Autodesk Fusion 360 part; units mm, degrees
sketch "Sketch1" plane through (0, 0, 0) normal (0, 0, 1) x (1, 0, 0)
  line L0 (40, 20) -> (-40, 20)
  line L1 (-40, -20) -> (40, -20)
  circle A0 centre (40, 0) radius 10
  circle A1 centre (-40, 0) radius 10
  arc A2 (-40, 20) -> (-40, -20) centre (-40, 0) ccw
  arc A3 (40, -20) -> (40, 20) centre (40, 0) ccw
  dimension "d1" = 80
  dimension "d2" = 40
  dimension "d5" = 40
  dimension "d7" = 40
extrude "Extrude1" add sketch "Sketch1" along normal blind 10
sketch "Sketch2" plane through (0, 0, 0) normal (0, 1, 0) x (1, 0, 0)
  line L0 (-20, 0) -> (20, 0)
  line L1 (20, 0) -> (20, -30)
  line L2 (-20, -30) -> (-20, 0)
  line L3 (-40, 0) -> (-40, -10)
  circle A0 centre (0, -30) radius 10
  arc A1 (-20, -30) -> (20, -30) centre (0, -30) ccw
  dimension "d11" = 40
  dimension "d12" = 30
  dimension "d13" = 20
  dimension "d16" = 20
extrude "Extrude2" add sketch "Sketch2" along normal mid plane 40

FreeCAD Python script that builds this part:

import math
import FreeCAD as App
import Part
import Sketcher
from FreeCAD import Vector
Q = App.Units.Quantity

doc = App.newDocument("Part")
body = doc.addObject("PartDesign::Body", "Body")

sketch1 = body.newObject("Sketcher::SketchObject", "Sketch")
sketch1.AttachmentSupport = (doc.getObject("XY_Plane"), [""])
sketch1.MapMode = "FlatFace"
sketch1.addGeometry([
    Part.ArcOfCircle(Part.Circle(Vector(40, 0, 0), Vector(0, 0, 1), 20), math.radians(-90), math.radians(90)),
    Part.LineSegment(Vector(40, 20, 0), Vector(-40, 20, 0)),
    Part.ArcOfCircle(Part.Circle(Vector(-40, 0, 0), Vector(0, 0, 1), 20), math.radians(90), math.radians(270)),
    Part.LineSegment(Vector(-40, -20, 0), Vector(40, -20, 0)),
    Part.Circle(Vector(-40, 0, 0), Vector(0, 0, 1), 10),
    Part.Circle(Vector(40, 0, 0), Vector(0, 0, 1), 10),
], False)
sketch1.addConstraint([
    Sketcher.Constraint("Tangent", 0, 2, 1, 1),
    Sketcher.Constraint("Tangent", 1, 2, 2, 1),
    Sketcher.Constraint("Tangent", 2, 2, 3, 1),
    Sketcher.Constraint("Tangent", 3, 2, 0, 1),
    Sketcher.Constraint("Horizontal", 1),
    Sketcher.Constraint("Horizontal", 3),
    Sketcher.Constraint("Coincident", 4, 3, 2, 3),
    Sketcher.Constraint("Coincident", 5, 3, 0, 3),
    Sketcher.Constraint("Equal", 4, 5),
    Sketcher.Constraint("Symmetric", 0, 3, 2, 3, -1, 1),
    Sketcher.Constraint("Radius", 0, Q("20 mm")),
    Sketcher.Constraint("DistanceX", 1, 2, 1, 1, Q("80 mm")),
    Sketcher.Constraint("Diameter", 4, Q("20 mm")),
])
pad1 = body.newObject("PartDesign::Pad", "Pad")
pad1.Profile = sketch1
pad1.Length = 10

sketch2 = body.newObject("Sketcher::SketchObject", "Sketch001")
sketch2.AttachmentSupport = (doc.getObject("XZ_Plane"), [""])
sketch2.MapMode = "FlatFace"
sketch2.addGeometry([
    Part.LineSegment(Vector(20, 0, 0), Vector(-20, 0, 0)),
    Part.LineSegment(Vector(-20, 0, 0), Vector(-20, 30, 0)),
    Part.ArcOfCircle(Part.Circle(Vector(0, 30, 0), Vector(0, 0, 1), 20), math.radians(0), math.radians(180)),
    Part.LineSegment(Vector(20, 30, 0), Vector(20, 0, 0)),
    Part.Circle(Vector(0, 30, 0), Vector(0, 0, 1), 10),
], False)
sketch2.addConstraint([
    Sketcher.Constraint("Coincident", 0, 2, 1, 1),
    Sketcher.Constraint("Tangent", 1, 2, 2, 2),
    Sketcher.Constraint("Tangent", 2, 1, 3, 1),
    Sketcher.Constraint("Coincident", 3, 2, 0, 1),
    Sketcher.Constraint("Horizontal", 0),
    Sketcher.Constraint("Vertical", 1),
    Sketcher.Constraint("Vertical", 3),
    Sketcher.Constraint("Coincident", 4, 3, 2, 3),
    Sketcher.Constraint("Symmetric", 0, 2, 3, 2, -1, 1),
    Sketcher.Constraint("Diameter", 4, Q("20 mm")),
    Sketcher.Constraint("Radius", 2, Q("20 mm")),
    Sketcher.Constraint("DistanceY", 1, 1, 1, 2, Q("30 mm")),
])
pad2 = body.newObject("PartDesign::Pad", "Pad001")
pad2.Profile = sketch2
pad2.Length = 40
pad2.Midplane = True

doc.recompute()
